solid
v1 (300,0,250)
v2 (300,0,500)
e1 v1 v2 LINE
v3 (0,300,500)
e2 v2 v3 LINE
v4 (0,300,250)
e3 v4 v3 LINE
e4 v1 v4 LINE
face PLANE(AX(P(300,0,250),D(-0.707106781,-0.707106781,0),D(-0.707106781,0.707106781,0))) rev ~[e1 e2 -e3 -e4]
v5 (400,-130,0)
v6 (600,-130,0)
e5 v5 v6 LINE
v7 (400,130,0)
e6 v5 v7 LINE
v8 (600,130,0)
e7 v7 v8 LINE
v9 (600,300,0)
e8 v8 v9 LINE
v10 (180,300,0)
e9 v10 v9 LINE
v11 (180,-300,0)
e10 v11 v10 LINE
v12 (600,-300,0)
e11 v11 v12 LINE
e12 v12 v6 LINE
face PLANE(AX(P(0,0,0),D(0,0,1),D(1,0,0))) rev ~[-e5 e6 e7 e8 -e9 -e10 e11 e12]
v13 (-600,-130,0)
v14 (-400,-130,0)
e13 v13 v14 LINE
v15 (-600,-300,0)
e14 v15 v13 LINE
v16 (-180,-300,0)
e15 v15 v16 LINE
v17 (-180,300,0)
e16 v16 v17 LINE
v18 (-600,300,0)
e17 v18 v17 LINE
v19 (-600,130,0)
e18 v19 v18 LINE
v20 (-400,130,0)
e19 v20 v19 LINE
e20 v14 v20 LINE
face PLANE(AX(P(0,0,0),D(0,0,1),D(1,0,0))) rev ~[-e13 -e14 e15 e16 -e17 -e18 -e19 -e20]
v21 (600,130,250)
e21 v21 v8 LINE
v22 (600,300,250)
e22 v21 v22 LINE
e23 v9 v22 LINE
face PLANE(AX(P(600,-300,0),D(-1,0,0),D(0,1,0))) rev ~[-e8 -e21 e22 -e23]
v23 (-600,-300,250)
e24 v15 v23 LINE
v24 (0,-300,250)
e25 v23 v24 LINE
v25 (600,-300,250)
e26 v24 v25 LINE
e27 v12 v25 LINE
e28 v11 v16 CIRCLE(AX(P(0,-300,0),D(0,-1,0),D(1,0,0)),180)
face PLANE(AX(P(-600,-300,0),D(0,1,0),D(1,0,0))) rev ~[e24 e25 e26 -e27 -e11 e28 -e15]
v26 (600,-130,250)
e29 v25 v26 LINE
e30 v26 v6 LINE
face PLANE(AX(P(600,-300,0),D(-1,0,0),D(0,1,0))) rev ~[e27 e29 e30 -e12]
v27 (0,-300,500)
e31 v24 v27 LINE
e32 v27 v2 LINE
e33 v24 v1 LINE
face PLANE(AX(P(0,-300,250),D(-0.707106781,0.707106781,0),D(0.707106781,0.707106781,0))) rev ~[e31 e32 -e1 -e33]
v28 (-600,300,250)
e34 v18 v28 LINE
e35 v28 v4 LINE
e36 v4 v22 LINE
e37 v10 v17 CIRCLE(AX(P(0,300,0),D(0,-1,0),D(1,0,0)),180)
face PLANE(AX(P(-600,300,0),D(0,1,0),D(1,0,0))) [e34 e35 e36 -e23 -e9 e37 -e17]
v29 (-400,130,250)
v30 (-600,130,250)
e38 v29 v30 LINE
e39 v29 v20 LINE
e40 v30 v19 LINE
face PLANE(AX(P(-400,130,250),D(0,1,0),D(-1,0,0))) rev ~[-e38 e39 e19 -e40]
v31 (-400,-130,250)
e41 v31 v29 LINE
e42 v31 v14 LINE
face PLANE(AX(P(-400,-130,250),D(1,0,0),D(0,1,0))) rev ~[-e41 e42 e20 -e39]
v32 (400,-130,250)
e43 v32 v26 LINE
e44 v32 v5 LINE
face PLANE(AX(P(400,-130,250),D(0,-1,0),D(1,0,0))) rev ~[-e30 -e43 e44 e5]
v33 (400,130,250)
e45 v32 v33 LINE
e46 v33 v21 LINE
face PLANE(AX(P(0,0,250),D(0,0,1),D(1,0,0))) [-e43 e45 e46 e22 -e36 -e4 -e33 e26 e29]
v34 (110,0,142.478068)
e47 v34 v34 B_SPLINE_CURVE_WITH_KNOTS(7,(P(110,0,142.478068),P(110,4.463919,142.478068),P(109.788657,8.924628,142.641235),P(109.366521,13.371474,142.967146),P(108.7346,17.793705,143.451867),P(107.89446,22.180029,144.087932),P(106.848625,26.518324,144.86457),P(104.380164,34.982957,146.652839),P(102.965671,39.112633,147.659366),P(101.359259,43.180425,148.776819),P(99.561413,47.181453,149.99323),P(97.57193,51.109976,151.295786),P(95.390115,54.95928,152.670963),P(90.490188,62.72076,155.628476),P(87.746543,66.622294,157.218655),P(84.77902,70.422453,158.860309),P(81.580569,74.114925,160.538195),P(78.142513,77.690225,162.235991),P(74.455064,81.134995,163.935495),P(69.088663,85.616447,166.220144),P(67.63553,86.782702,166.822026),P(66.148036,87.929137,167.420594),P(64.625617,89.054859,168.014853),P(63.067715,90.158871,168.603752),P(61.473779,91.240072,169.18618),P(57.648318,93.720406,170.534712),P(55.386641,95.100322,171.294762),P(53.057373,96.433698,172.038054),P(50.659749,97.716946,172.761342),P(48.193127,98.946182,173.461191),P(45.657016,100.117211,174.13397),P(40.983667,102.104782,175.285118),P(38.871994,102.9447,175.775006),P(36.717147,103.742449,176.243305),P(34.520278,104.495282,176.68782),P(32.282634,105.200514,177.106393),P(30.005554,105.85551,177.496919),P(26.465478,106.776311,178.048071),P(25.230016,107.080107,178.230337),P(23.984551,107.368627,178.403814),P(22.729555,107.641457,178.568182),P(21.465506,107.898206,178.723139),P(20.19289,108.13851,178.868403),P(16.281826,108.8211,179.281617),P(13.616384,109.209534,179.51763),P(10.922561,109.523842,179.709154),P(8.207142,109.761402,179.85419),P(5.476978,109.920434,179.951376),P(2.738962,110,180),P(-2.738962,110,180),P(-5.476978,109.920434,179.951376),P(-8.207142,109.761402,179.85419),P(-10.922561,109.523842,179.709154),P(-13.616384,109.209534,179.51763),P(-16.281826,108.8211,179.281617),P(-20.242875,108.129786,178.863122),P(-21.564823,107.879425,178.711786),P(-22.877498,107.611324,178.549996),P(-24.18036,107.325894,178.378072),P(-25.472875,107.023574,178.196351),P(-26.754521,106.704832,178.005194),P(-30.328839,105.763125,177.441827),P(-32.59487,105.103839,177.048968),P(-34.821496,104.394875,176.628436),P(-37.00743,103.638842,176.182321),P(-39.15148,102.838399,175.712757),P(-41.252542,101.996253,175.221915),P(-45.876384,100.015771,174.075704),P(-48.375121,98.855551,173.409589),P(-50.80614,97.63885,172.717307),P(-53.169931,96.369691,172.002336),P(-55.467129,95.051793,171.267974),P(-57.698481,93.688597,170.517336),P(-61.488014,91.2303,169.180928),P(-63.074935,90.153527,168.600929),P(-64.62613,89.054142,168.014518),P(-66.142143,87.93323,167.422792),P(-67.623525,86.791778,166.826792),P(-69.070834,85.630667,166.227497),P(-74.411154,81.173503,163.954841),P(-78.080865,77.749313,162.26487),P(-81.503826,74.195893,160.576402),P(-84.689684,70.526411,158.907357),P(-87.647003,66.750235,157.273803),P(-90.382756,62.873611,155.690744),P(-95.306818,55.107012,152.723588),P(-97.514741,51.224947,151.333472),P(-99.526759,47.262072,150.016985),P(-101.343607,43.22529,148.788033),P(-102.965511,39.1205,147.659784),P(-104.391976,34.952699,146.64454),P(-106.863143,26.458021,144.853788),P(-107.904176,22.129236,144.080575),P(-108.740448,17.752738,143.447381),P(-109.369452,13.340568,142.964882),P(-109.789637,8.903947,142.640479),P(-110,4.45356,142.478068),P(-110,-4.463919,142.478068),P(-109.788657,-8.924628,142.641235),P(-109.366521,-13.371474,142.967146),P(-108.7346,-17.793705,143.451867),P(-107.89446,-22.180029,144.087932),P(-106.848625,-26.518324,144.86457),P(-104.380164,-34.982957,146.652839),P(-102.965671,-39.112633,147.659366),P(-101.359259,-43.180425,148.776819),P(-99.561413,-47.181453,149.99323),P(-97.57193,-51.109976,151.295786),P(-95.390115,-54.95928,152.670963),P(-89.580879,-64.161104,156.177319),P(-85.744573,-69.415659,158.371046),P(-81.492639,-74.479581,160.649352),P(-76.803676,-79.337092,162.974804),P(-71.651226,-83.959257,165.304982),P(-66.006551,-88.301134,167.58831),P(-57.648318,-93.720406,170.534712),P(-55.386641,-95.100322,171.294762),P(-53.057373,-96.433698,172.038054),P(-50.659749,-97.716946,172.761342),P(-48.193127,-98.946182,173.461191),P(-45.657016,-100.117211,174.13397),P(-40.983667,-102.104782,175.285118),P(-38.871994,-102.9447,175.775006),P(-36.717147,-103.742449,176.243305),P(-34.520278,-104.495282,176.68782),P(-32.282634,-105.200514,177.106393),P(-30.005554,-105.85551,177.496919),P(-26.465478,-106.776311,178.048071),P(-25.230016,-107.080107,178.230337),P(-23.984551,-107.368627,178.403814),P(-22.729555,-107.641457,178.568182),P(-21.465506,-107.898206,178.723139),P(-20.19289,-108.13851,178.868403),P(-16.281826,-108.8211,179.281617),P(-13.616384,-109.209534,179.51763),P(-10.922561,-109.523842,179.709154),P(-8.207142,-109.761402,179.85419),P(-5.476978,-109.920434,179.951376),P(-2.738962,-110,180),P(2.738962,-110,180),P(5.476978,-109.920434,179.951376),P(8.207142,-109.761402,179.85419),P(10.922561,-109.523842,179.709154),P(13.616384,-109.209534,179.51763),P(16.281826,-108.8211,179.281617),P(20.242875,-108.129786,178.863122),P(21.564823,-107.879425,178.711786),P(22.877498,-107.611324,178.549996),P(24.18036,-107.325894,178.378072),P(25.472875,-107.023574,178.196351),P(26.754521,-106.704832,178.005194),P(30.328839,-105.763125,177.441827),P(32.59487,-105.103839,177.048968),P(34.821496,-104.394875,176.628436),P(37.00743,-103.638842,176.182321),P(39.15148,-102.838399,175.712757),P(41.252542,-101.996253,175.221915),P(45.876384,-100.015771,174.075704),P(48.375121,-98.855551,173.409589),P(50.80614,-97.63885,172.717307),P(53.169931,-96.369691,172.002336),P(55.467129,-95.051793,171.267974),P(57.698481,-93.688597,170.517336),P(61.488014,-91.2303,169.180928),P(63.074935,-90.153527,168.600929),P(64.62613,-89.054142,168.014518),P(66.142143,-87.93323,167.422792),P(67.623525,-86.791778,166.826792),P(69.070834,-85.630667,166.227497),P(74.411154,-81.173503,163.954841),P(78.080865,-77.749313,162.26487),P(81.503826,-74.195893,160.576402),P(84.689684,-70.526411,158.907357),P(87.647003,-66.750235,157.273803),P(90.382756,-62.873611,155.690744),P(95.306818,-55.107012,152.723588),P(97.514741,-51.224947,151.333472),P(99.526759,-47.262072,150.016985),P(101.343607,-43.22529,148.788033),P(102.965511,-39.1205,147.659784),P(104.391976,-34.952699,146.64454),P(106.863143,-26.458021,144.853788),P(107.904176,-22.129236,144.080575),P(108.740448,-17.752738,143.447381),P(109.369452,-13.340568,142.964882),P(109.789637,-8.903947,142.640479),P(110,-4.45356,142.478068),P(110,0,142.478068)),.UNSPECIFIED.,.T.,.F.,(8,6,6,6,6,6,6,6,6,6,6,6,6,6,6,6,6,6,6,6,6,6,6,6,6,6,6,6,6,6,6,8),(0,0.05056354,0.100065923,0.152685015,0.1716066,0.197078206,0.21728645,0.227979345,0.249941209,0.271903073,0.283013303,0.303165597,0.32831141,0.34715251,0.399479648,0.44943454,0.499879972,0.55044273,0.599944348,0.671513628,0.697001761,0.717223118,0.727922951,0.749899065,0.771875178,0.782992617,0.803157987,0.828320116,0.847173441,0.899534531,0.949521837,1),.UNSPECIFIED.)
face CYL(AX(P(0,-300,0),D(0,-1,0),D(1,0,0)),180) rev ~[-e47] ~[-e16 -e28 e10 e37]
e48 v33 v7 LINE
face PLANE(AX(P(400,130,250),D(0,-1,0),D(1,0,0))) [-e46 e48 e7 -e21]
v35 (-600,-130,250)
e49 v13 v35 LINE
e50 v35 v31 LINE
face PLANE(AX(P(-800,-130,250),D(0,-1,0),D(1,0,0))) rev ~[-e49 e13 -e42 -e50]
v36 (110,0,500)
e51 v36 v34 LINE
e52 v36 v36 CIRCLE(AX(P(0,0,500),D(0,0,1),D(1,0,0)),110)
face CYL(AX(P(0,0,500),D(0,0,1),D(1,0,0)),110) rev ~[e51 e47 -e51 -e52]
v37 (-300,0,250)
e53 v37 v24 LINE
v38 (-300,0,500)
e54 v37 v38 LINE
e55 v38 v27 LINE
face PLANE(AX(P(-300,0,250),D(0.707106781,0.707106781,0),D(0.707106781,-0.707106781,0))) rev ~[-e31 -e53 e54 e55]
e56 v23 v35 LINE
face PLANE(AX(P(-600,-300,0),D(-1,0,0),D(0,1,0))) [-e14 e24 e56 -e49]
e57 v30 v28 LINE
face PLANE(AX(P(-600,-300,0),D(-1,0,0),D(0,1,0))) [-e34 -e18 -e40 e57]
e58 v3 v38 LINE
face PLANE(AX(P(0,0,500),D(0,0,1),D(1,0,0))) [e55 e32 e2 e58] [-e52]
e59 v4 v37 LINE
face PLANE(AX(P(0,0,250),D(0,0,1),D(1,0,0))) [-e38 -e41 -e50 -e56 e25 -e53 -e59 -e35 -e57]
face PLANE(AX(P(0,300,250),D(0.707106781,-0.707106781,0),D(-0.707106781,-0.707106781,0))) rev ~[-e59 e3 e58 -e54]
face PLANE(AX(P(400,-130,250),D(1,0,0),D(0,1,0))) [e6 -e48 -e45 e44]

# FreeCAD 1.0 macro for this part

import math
import FreeCAD as App
import Part
import Sketcher

V = App.Vector
Q = App.Units.Quantity


def add_polygon(sketch, points):
    """Adds a closed chain of lines whose ends are joined by coincident constraints."""
    first, n = sketch.GeometryCount, len(points)
    for a, b in zip(points, points[1:] + points[:1]):
        sketch.addGeometry(Part.LineSegment(App.Vector(*a, 0), App.Vector(*b, 0)), False)
    for i in range(n):
        sketch.addConstraint(Sketcher.Constraint("Coincident", first + i, 2, first + (i + 1) % n, 1))

doc = App.newDocument("Part")
body = doc.addObject("PartDesign::Body", "Body")

# Sketch on XY plane
sketch1 = body.newObject("Sketcher::SketchObject", "Sketch")
sketch1.AttachmentSupport = (doc.getObject("XY_Plane"), [""])
sketch1.MapMode = "FlatFace"
add_polygon(sketch1, [(-600, 300), (-600, -300), (600, -300), (600, 300)])  # lines 0-3
sketch1.addConstraint([
    Sketcher.Constraint("Vertical", 0),
    Sketcher.Constraint("Horizontal", 1),
    Sketcher.Constraint("Vertical", 2),
    Sketcher.Constraint("Horizontal", 3),
    Sketcher.Constraint("Symmetric", 0, 2, 2, 2, -1, 1),
    Sketcher.Constraint("DistanceX", 1, 1, 1, 2, Q("1200 mm")),
    Sketcher.Constraint("DistanceY", 0, 2, 0, 1, Q("600 mm")),
])
pad1 = body.newObject("PartDesign::Pad", "Pad")
pad1.Profile = sketch1
pad1.Length = 250

# Sketch on XY plane
sketch2 = body.newObject("Sketcher::SketchObject", "Sketch001")
sketch2.AttachmentSupport = (doc.getObject("XY_Plane"), [""])
sketch2.MapMode = "FlatFace"
sketch2.AttachmentOffset = App.Placement(V(0, 0, 250), App.Rotation())
add_polygon(sketch2, [(-800, 130), (-800, -130), (-400, -130), (-400, 130)])  # lines 0-3
add_polygon(sketch2, [(400, 130), (400, -130), (600, -130), (600, 130)])  # lines 4-7
sketch2.addConstraint([
    Sketcher.Constraint("Vertical", 0),
    Sketcher.Constraint("Horizontal", 1),
    Sketcher.Constraint("Vertical", 2),
    Sketcher.Constraint("Horizontal", 3),
    Sketcher.Constraint("Vertical", 4),
    Sketcher.Constraint("Horizontal", 5),
    Sketcher.Constraint("Vertical", 6),
    Sketcher.Constraint("Horizontal", 7),
    Sketcher.Constraint("Symmetric", 2, 2, 4, 2, -1, 1),
    Sketcher.Constraint("Horizontal", 1, 2, 4, 2),
    Sketcher.Constraint("Horizontal", 3, 2, 6, 2),
    Sketcher.Constraint("DistanceX", 1, 1, 1, 2, Q("400 mm")),
    Sketcher.Constraint("DistanceX", 5, 1, 5, 2, Q("200 mm")),
    Sketcher.Constraint("DistanceY", 0, 2, 0, 1, Q("260 mm")),
    Sketcher.Constraint("DistanceX", 0, 2, -1, 1, Q("800 mm")),
])
pocket1 = body.newObject("PartDesign::Pocket", "Pocket")
pocket1.Profile = sketch2
pocket1.Type = "ThroughAll"

# Sketch on XY plane
sketch3 = body.newObject("Sketcher::SketchObject", "Sketch002")
sketch3.AttachmentSupport = (doc.getObject("XY_Plane"), [""])
sketch3.MapMode = "FlatFace"
sketch3.AttachmentOffset = App.Placement(V(0, 0, 250), App.Rotation())
add_polygon(sketch3, [(300, 0), (0, 300), (-300, 0), (0, -300)])  # lines 0-3
sketch3.addConstraint([
    Sketcher.Constraint("Symmetric", 0, 2, 2, 2, -1, 1),
    Sketcher.Constraint("Symmetric", 1, 2, 3, 2, -1, 1),
    Sketcher.Constraint("PointOnObject", 0, 2, -2),
    Sketcher.Constraint("PointOnObject", 1, 2, -1),
    Sketcher.Constraint("Perpendicular", 0, 1),
    Sketcher.Constraint("DistanceY", -1, 1, 0, 2, Q("300 mm")),
])
pad2 = body.newObject("PartDesign::Pad", "Pad001")
pad2.Profile = sketch3
pad2.Length = 250

# Sketch on XY plane
sketch4 = body.newObject("Sketcher::SketchObject", "Sketch003")
sketch4.AttachmentSupport = (doc.getObject("XY_Plane"), [""])
sketch4.MapMode = "FlatFace"
sketch4.AttachmentOffset = App.Placement(V(0, 0, 500), App.Rotation())
sketch4.addGeometry(Part.Circle(V(0, 0, 0), V(0, 0, 1), 110), False)
sketch4.addConstraint([
    Sketcher.Constraint("Coincident", 0, 3, -1, 1),
    Sketcher.Constraint("Diameter", 0, Q("220 mm")),
])
pocket2 = body.newObject("PartDesign::Pocket", "Pocket001")
pocket2.Profile = sketch4
pocket2.Type = "ThroughAll"

# Sketch on XZ plane
sketch5 = body.newObject("Sketcher::SketchObject", "Sketch004")
sketch5.AttachmentSupport = (doc.getObject("XZ_Plane"), [""])
sketch5.MapMode = "FlatFace"
sketch5.AttachmentOffset = App.Placement(V(0, 0, 300), App.Rotation())
sketch5.addGeometry([
    Part.LineSegment(V(-180, 0, 0), V(180, 0, 0)),
    Part.ArcOfCircle(Part.Circle(V(0, 0, 0), V(0, 0, 1), 180), math.radians(0), math.radians(180)),
], False)
sketch5.addConstraint([
    Sketcher.Constraint("Coincident", 0, 1, 1, 2),
    Sketcher.Constraint("Coincident", 1, 1, 0, 2),
    Sketcher.Constraint("Horizontal", 0),
    Sketcher.Constraint("Coincident", 1, 3, -1, 1),
    Sketcher.Constraint("PointOnObject", 0, 1, -1),
    Sketcher.Constraint("Radius", 1, Q("180 mm")),
])
pocket3 = body.newObject("PartDesign::Pocket", "Pocket002")
pocket3.Profile = sketch5
pocket3.Type = "ThroughAll"

doc.recompute()
